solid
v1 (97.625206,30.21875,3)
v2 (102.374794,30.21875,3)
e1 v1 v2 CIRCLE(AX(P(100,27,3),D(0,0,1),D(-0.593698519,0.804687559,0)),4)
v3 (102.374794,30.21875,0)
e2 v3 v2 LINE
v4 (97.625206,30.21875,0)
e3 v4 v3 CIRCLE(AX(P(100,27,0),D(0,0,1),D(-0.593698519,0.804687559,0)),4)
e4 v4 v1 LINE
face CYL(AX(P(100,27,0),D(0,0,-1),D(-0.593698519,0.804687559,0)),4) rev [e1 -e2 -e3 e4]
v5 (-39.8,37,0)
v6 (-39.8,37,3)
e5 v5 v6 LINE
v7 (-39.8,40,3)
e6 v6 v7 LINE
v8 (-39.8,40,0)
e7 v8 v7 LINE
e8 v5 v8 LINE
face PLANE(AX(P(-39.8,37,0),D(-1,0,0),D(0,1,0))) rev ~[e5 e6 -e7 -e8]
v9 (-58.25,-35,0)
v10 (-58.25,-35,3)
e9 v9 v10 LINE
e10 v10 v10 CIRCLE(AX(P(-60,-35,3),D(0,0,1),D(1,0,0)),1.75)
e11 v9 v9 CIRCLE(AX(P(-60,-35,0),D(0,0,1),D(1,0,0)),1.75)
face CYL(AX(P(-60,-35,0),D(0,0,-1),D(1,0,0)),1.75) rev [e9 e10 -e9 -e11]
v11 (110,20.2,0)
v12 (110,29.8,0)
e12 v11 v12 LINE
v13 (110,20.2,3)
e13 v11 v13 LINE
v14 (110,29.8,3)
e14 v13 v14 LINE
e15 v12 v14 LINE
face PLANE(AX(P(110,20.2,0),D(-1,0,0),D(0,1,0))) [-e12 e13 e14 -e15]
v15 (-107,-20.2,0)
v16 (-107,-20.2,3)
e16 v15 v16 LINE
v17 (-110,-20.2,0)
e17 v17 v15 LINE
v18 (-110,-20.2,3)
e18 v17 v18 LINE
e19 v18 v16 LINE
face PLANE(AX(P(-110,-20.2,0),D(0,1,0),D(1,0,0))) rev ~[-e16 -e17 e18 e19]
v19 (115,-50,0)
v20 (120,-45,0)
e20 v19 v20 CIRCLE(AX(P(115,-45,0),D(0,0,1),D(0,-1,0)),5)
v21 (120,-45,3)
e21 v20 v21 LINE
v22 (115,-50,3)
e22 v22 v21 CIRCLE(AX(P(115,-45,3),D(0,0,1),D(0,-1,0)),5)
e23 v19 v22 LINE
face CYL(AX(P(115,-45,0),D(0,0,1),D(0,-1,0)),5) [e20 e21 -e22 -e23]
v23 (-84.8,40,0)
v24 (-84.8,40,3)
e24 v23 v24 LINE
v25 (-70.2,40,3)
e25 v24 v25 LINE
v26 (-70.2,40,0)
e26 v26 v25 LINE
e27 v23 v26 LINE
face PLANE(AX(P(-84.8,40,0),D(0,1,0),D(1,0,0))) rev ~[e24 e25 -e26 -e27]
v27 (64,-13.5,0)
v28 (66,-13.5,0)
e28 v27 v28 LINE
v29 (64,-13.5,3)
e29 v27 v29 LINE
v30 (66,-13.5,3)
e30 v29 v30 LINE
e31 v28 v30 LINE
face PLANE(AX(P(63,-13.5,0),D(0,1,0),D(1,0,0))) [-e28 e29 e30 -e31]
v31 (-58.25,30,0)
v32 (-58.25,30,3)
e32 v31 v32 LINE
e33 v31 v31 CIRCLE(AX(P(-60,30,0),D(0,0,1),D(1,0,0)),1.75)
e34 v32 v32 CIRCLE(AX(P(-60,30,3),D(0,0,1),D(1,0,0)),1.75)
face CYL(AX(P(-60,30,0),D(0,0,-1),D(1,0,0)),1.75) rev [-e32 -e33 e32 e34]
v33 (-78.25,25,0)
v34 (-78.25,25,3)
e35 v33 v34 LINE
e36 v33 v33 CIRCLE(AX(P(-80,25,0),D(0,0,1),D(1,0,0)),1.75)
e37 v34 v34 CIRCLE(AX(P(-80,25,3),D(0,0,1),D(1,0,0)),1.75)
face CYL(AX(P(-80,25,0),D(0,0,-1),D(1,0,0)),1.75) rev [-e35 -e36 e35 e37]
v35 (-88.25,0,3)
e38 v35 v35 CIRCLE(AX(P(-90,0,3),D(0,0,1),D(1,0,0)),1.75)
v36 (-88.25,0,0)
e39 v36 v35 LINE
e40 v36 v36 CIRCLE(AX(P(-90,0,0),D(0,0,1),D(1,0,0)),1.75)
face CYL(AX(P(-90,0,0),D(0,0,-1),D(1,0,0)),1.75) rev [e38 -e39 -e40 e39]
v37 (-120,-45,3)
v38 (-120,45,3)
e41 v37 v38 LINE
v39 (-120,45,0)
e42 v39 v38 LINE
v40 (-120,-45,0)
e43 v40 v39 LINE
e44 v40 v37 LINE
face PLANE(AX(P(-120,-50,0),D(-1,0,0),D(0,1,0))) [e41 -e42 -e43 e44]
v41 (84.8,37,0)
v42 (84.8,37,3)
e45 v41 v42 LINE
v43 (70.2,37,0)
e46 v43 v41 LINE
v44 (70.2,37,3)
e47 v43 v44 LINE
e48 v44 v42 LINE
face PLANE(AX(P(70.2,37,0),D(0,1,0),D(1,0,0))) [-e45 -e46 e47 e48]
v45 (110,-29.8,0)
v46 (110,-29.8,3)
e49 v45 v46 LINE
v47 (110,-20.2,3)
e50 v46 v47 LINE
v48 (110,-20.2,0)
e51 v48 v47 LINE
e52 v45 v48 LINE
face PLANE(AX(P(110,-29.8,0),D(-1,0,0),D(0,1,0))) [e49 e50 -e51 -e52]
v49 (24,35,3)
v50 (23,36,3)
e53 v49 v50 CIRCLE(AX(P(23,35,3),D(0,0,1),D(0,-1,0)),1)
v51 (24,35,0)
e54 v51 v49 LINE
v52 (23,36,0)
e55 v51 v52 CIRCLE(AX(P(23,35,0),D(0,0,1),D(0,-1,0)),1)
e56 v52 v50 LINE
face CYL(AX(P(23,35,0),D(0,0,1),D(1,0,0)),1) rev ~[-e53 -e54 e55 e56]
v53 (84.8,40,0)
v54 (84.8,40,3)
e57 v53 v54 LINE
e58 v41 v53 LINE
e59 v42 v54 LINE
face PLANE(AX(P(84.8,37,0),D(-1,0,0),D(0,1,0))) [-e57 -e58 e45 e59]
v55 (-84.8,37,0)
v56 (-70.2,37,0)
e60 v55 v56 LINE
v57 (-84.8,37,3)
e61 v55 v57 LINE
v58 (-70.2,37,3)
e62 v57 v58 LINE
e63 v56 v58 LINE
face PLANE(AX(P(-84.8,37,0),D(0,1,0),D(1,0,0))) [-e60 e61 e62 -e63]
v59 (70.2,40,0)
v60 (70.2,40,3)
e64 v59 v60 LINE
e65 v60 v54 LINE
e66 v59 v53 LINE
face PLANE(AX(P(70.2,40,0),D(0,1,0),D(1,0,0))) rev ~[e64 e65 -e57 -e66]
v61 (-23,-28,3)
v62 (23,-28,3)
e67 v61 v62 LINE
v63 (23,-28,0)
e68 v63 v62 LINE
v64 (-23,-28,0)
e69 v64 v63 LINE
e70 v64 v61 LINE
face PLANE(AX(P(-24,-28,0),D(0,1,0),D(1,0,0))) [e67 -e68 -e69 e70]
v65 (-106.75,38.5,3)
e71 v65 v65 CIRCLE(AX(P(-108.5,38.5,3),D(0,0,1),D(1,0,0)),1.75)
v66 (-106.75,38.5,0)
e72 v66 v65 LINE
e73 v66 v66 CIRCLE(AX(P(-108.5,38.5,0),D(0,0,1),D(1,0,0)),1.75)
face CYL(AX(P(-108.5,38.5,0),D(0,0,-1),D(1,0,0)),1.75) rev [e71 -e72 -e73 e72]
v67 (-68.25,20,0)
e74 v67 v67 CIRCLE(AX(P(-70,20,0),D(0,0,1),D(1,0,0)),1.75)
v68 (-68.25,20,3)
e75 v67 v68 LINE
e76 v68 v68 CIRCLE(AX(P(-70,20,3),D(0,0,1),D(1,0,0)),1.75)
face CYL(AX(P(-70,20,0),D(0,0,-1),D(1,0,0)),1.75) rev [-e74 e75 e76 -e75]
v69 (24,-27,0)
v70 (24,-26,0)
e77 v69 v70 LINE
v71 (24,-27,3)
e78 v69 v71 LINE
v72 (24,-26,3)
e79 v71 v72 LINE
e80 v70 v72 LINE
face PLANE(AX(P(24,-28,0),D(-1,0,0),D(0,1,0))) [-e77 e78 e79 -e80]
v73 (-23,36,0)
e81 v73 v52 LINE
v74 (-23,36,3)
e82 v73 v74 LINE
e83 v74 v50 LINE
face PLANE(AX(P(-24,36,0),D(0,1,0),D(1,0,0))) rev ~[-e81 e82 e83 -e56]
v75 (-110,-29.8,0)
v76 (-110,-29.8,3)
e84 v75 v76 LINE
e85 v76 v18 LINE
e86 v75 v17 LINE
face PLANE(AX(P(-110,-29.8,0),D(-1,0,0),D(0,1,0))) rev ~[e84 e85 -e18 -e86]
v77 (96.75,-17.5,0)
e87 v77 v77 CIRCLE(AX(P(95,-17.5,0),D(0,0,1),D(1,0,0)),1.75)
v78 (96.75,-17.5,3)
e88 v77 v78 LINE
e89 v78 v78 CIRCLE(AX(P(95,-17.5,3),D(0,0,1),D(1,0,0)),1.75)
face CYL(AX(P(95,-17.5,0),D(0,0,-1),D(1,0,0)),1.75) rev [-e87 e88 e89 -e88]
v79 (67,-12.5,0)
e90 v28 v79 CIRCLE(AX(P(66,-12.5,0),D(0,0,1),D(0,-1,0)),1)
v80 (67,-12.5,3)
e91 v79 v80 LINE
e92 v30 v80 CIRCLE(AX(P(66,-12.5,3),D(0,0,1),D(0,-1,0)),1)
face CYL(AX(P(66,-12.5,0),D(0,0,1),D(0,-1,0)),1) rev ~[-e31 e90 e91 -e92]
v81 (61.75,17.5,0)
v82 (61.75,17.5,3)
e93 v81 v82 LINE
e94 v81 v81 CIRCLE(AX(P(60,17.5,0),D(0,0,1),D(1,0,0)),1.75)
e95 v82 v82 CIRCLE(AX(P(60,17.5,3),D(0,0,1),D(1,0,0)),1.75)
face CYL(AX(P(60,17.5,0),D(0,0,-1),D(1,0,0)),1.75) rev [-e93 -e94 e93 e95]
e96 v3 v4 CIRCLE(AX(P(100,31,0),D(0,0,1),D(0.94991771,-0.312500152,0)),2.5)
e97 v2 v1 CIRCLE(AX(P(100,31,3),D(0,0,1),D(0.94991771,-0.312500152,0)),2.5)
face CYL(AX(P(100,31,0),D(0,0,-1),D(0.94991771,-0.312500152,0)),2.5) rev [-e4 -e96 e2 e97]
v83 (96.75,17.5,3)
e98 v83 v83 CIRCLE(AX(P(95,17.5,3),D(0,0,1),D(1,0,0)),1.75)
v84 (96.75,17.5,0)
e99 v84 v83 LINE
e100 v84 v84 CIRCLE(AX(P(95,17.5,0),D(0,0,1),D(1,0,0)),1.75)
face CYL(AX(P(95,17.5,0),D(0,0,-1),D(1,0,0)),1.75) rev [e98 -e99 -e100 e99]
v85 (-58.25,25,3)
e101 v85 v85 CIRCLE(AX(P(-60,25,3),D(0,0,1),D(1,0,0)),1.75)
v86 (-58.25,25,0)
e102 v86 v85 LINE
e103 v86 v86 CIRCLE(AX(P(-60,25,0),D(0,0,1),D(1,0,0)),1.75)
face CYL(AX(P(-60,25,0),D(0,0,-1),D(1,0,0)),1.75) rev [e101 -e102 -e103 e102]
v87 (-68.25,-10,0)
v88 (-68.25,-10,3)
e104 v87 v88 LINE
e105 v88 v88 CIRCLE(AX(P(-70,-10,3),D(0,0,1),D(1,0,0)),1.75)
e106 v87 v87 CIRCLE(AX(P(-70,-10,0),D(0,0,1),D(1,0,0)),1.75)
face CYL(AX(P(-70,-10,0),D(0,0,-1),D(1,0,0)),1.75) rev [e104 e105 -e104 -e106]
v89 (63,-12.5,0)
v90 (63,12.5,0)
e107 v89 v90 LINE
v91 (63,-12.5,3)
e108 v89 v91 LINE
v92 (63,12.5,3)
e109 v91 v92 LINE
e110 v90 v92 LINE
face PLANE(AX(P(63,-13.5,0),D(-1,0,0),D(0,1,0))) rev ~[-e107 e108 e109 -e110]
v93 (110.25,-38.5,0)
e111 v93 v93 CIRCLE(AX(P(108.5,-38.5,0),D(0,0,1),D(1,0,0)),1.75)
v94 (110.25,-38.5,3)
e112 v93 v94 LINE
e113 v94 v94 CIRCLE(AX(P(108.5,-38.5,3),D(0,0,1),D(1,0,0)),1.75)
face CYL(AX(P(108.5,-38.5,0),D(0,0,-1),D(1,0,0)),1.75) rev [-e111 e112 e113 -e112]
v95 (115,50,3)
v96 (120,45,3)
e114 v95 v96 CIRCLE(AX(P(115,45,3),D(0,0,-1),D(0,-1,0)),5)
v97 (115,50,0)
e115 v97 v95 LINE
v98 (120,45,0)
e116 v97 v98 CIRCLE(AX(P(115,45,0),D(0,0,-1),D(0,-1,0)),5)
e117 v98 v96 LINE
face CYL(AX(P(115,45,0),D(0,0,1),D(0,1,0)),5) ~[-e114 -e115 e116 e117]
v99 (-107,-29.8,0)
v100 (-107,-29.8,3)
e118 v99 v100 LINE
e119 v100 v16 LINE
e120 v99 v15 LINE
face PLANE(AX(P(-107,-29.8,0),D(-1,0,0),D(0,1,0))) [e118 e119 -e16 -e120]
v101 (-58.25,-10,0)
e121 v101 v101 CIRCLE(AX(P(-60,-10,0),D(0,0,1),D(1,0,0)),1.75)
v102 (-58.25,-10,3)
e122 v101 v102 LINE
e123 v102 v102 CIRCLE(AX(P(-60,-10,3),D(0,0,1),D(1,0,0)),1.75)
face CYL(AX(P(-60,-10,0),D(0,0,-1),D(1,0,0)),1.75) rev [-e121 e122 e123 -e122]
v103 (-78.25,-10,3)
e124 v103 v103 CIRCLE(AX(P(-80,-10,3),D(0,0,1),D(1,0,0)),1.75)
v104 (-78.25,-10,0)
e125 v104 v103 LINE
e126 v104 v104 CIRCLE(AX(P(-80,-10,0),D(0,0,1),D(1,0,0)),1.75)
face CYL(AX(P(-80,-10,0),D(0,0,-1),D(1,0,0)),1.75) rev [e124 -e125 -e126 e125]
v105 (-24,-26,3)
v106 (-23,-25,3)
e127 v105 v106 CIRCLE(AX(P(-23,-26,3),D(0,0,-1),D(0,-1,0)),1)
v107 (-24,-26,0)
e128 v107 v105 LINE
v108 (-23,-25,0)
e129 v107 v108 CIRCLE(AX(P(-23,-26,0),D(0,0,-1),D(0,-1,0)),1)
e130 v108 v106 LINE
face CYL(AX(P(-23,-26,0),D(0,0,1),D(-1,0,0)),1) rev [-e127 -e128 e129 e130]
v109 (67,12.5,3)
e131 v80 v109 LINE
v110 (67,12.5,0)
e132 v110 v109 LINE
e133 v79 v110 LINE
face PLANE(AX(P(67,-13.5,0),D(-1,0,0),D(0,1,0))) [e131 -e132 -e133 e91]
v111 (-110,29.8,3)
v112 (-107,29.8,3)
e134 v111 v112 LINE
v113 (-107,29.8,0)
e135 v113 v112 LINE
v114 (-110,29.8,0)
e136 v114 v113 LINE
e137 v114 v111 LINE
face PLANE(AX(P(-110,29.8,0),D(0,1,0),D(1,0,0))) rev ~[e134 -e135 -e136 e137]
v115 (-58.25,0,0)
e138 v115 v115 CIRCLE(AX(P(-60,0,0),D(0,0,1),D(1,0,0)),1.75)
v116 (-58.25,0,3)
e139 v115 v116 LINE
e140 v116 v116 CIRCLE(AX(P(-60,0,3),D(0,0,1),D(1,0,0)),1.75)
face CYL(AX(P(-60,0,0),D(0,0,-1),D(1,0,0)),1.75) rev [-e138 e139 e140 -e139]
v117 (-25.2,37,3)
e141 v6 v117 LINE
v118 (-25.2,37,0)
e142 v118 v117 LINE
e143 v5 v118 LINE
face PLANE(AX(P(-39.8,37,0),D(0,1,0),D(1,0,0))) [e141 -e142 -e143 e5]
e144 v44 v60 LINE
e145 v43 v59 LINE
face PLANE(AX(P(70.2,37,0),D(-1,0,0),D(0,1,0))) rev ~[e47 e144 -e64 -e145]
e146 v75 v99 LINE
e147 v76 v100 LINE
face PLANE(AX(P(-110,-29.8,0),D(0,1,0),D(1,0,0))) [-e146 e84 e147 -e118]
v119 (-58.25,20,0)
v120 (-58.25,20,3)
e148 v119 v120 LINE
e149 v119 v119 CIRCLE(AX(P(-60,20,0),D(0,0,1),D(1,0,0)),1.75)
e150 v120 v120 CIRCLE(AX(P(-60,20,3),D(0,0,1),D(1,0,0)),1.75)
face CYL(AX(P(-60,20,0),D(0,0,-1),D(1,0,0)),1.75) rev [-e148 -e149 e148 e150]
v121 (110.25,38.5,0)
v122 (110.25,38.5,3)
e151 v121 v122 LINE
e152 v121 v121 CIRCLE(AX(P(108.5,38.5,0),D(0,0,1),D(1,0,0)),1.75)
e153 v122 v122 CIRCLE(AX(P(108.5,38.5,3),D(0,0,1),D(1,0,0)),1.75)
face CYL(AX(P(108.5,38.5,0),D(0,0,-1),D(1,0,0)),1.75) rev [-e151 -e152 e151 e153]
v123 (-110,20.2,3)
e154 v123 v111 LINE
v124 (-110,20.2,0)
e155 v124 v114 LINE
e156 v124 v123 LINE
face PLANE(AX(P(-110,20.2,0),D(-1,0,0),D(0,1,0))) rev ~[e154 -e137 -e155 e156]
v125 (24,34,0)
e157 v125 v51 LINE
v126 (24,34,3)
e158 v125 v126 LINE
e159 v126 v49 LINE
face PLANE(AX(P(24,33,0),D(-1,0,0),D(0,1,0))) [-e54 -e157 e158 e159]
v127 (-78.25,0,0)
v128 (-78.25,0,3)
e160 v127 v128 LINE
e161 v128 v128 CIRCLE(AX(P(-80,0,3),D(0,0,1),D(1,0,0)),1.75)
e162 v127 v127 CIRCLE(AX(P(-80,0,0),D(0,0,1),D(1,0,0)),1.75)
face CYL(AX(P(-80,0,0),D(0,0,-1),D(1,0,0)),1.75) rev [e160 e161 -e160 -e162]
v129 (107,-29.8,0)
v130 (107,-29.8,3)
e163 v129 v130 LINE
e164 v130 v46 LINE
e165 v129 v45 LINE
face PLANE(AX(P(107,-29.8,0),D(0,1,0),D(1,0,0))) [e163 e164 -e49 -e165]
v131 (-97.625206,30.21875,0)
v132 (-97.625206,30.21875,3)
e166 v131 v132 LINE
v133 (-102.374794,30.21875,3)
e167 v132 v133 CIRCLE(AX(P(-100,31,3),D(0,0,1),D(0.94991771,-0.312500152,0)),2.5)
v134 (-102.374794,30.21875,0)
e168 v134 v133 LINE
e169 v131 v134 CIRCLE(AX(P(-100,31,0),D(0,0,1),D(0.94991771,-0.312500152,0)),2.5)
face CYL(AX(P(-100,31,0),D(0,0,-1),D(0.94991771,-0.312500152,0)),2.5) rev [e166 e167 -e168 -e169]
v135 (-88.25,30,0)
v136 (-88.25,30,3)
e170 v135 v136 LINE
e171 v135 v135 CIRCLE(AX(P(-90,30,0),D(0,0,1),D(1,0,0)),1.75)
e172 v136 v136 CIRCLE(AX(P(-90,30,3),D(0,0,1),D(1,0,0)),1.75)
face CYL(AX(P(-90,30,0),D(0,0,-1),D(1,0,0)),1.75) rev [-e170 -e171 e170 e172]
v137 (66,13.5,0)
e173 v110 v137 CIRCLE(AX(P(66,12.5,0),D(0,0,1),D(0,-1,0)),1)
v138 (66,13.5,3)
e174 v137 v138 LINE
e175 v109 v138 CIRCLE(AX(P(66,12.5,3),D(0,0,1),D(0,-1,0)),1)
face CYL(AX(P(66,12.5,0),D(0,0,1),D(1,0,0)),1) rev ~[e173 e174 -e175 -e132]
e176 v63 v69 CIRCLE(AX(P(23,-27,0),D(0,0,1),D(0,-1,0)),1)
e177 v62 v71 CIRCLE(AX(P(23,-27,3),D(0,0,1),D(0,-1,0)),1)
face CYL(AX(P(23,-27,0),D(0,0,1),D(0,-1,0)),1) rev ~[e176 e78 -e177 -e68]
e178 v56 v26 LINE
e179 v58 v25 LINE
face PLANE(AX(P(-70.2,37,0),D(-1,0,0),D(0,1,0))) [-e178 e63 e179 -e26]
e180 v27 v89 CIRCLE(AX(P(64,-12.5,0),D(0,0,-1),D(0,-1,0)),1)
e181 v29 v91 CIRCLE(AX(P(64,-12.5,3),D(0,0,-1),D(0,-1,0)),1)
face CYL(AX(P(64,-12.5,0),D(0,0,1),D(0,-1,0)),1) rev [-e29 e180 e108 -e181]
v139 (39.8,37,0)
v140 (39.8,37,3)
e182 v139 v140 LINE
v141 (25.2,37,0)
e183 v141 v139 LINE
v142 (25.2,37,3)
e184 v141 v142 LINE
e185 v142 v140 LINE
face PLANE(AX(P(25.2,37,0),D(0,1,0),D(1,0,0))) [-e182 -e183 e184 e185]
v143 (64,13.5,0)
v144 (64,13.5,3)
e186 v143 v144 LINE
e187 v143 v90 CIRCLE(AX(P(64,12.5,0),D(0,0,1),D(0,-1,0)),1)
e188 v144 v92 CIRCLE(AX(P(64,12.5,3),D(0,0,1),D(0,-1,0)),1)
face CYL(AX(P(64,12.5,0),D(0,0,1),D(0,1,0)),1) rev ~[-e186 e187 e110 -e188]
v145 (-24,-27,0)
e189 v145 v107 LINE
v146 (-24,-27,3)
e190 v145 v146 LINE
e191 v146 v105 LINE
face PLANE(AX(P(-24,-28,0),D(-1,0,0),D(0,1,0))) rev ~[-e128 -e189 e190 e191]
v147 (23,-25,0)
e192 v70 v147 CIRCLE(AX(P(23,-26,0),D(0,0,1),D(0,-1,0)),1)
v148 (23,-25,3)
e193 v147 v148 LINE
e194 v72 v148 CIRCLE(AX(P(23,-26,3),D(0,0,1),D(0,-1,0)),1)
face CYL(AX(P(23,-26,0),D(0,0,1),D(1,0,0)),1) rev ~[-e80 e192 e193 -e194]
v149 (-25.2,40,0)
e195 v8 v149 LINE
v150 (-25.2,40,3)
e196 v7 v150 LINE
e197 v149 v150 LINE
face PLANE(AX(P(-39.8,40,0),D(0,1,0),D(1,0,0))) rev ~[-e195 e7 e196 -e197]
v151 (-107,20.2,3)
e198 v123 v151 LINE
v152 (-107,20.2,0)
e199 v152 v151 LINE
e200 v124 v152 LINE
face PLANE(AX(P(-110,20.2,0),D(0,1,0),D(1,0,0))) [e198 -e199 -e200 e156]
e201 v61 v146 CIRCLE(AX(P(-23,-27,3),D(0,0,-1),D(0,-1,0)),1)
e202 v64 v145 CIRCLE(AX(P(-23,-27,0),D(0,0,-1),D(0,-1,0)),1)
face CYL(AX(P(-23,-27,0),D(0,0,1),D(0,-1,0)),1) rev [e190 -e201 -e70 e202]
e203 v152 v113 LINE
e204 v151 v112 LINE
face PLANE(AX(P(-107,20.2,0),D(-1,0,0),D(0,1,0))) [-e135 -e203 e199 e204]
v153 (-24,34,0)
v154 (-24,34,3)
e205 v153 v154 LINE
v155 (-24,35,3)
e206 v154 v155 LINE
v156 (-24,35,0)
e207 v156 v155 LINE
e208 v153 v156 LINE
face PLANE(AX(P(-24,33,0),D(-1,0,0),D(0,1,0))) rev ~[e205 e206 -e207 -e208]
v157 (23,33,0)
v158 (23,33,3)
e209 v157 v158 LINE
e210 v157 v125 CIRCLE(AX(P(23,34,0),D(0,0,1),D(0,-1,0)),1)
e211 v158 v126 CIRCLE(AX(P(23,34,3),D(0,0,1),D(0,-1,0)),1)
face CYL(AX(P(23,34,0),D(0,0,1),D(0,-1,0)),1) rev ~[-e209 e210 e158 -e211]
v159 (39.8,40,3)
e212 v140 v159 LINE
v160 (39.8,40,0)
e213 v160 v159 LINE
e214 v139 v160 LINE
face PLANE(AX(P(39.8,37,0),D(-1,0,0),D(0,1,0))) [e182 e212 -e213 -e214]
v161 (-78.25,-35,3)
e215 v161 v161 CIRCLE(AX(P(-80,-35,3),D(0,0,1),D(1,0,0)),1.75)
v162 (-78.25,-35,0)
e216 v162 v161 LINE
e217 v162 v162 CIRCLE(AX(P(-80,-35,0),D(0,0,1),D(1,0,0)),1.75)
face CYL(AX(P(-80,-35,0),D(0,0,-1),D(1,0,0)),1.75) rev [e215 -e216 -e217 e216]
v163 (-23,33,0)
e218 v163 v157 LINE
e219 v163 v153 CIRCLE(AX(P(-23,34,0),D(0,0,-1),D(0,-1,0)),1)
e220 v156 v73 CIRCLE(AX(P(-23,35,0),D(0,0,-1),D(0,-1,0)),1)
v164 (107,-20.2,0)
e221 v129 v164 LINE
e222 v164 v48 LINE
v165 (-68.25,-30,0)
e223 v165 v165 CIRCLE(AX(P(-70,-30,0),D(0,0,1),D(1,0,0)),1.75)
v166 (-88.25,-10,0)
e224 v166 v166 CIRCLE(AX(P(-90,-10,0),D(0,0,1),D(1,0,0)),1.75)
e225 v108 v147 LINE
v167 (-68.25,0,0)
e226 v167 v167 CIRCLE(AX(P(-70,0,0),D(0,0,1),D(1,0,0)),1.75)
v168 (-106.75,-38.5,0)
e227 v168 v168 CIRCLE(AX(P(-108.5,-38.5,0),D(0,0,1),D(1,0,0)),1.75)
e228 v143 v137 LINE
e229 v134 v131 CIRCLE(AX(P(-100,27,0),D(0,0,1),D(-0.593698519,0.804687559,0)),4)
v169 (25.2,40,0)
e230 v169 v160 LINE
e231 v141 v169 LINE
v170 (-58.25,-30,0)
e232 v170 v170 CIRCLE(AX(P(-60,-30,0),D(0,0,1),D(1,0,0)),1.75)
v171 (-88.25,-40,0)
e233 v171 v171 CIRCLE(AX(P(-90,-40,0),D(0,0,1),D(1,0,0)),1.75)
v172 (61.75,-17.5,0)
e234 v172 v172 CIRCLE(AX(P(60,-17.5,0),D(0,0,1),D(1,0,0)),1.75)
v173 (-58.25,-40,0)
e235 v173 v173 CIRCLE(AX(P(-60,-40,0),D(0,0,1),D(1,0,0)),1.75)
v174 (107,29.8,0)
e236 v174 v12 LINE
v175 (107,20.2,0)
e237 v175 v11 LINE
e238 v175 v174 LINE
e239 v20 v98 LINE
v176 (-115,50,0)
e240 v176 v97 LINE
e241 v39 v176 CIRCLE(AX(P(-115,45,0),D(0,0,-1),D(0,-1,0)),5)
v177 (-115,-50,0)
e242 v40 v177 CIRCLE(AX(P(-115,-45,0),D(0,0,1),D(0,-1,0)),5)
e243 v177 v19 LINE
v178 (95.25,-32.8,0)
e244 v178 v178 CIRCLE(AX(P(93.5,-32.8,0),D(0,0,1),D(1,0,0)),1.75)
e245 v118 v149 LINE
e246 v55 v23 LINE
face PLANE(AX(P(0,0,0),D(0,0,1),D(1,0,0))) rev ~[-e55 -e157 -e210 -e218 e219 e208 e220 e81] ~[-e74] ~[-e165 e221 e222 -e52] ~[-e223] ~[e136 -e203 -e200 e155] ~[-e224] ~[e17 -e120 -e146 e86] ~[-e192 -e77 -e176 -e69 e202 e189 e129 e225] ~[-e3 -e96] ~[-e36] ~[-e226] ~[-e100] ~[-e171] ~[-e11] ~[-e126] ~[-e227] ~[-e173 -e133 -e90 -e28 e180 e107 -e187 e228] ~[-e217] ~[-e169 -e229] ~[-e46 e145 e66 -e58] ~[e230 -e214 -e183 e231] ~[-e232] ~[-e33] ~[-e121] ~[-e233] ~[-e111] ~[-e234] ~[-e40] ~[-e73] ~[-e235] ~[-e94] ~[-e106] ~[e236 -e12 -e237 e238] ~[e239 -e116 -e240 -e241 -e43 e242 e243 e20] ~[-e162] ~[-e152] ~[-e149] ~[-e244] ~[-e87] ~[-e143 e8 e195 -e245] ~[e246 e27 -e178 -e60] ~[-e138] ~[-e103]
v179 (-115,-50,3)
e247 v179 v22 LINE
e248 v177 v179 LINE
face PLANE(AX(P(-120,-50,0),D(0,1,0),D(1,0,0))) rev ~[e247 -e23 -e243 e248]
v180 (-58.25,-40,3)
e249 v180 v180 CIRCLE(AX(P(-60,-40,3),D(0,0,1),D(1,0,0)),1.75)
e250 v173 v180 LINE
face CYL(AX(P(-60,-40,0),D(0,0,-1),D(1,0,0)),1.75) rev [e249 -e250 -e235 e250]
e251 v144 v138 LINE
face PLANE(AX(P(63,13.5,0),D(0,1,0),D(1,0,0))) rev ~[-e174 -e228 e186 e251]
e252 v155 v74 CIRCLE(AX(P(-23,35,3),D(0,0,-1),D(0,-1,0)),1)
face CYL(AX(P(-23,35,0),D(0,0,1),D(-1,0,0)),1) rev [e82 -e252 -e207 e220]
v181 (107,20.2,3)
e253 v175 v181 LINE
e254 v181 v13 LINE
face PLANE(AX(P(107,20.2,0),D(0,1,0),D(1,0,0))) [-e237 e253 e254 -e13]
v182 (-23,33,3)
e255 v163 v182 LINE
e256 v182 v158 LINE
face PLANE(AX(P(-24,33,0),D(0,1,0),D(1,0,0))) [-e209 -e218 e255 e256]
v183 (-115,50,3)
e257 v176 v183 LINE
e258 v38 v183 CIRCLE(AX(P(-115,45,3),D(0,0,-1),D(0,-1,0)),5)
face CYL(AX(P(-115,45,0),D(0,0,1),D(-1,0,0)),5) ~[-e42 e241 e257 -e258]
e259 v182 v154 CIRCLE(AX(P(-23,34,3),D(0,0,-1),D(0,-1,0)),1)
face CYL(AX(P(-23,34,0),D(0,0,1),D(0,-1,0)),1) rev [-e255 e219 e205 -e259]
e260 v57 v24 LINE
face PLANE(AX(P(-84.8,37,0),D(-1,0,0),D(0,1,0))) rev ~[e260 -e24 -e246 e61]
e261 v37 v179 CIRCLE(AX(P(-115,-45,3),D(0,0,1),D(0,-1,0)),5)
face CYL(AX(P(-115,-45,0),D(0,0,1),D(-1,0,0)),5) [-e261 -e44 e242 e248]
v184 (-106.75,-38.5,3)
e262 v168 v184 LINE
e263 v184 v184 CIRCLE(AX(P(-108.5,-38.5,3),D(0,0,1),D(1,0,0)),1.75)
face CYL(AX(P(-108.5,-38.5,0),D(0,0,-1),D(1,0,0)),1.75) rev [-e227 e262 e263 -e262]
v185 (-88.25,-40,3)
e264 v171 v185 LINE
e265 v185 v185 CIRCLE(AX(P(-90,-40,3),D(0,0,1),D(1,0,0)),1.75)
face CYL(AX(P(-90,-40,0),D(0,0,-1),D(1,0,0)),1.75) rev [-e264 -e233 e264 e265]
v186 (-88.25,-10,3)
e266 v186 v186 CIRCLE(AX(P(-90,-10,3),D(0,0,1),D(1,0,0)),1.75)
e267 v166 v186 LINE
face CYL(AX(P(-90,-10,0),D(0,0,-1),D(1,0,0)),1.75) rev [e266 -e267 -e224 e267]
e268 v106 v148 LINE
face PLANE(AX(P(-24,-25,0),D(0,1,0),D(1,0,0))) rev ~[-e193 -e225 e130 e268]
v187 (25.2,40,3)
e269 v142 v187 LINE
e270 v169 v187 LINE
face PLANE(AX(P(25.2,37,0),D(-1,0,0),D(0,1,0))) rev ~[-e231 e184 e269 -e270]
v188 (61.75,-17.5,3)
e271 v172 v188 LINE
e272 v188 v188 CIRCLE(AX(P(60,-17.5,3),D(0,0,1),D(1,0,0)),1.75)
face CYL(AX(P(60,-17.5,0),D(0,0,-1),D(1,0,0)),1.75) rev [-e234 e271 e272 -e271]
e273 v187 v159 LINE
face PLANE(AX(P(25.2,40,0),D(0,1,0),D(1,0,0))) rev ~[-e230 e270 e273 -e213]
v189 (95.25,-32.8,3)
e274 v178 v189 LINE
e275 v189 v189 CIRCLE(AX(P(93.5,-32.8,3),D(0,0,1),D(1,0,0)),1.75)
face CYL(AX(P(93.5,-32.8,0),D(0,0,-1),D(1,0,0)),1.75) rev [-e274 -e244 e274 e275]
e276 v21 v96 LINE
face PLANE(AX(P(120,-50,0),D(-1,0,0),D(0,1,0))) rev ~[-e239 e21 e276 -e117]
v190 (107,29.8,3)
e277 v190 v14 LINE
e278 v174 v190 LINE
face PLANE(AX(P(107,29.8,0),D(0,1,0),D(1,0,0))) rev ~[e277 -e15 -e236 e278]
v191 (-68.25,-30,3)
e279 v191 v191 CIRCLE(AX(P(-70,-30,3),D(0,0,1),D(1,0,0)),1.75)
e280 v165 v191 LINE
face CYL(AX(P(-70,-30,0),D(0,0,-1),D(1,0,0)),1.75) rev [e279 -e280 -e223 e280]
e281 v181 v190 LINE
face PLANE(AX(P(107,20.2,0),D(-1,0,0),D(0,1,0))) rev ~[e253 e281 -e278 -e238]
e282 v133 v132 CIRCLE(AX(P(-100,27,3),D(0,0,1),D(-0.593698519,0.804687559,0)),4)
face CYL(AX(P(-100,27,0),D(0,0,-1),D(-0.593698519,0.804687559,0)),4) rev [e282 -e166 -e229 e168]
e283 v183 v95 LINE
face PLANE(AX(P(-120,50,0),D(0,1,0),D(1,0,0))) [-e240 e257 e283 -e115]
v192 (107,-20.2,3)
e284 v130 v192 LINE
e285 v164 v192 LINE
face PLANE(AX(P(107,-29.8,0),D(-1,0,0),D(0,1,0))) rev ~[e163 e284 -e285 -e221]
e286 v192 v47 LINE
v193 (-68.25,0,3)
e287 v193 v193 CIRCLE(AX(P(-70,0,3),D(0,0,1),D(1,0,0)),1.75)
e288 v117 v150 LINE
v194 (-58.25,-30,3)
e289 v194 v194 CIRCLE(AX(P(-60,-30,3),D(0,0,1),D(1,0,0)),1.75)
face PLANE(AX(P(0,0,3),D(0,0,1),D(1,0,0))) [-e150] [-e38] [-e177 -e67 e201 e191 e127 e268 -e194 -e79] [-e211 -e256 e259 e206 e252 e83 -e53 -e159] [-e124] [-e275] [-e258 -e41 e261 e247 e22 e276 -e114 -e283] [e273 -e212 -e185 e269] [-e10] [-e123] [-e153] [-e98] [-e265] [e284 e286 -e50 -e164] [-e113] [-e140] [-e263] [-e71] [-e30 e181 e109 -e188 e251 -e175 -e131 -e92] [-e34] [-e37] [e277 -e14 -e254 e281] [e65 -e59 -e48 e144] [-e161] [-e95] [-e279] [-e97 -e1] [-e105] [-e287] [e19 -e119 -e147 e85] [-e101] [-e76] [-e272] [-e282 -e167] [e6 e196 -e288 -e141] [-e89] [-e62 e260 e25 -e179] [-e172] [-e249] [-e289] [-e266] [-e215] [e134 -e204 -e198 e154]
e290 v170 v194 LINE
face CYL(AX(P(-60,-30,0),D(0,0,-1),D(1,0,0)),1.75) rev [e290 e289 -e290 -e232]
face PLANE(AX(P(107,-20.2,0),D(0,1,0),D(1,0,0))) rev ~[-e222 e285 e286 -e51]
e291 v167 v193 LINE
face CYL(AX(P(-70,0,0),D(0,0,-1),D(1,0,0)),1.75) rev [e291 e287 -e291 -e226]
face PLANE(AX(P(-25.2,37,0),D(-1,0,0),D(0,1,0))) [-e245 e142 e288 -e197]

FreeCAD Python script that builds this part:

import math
import FreeCAD as App
import Part
import Sketcher


def edges_at(feature, points):
    """Names of the edges that pass closest to the given points."""
    edges = feature.Shape.Edges
    near = lambda p: min(range(len(edges)), key=lambda i: edges[i].distToShape(Part.Vertex(*p))[0])
    return sorted({f"Edge{near(p) + 1}" for p in points})

doc = App.newDocument("Part")
body = doc.addObject("PartDesign::Body", "Body")
body.AllowCompound = True

sketch1 = body.newObject("Sketcher::SketchObject", "Sketch")
sketch1.AttachmentSupport = (doc.getObject("XY_Plane"), [""])
sketch1.MapMode = "FlatFace"
sketch1.addGeometry([
    Part.Circle(App.Vector(60, -17.5, 0), App.Vector(0, 0, 1), 1.8),
    Part.Circle(App.Vector(60, 17.5, 0), App.Vector(0, 0, 1), 1.8),
    Part.Circle(App.Vector(95, 17.5, 0), App.Vector(0, 0, 1), 1.8),
    Part.Circle(App.Vector(95, -17.5, 0), App.Vector(0, 0, 1), 1.8),
    Part.LineSegment(App.Vector(63, 13.5, 0), App.Vector(63, -13.5, 0)),
    Part.LineSegment(App.Vector(63, -13.5, 0), App.Vector(67, -13.5, 0)),
    Part.LineSegment(App.Vector(67, -13.5, 0), App.Vector(67, 13.5, 0)),
    Part.LineSegment(App.Vector(67, 13.5, 0), App.Vector(63, 13.5, 0)),
], False)
sketch1.addConstraint([
    Sketcher.Constraint("Coincident", 4, 2, 5, 1),
    Sketcher.Constraint("Coincident", 5, 2, 6, 1),
    Sketcher.Constraint("Coincident", 6, 2, 7, 1),
    Sketcher.Constraint("Coincident", 7, 2, 4, 1),
    Sketcher.Constraint("Vertical", 4),
    Sketcher.Constraint("Horizontal", 5),
    Sketcher.Constraint("Vertical", 6),
    Sketcher.Constraint("Horizontal", 7),
    Sketcher.Constraint("Equal", 0, 1),
    Sketcher.Constraint("Equal", 1, 2),
    Sketcher.Constraint("Equal", 2, 3),
    Sketcher.Constraint("Symmetric", 0, 3, 1, 3, -1),
    Sketcher.Constraint("Symmetric", 2, 3, 3, 3, -1),
    Sketcher.Constraint("Horizontal", 1, 3, 2, 3),
    Sketcher.Constraint("Diameter", 0, 3.5),
    Sketcher.Constraint("DistanceX", 5, 1, 5, 2, 4.0),
    Sketcher.Constraint("DistanceY", 4, 2, 4, 1, 27.0),
    Sketcher.Constraint("DistanceX", -1, 1, 0, 3, 60.0),
    Sketcher.Constraint("DistanceX", -1, 1, 2, 3, 95.0),
    Sketcher.Constraint("DistanceX", -1, 1, 4, 2, 63.0),
    Sketcher.Constraint("DistanceY", 0, 3, 1, 3, 35.0),
    Sketcher.Constraint("DistanceY", 0, 3, 4, 2, 4.0),
])
pad1 = body.newObject("PartDesign::Pad", "Pad")
pad1.Profile = sketch1
pad1.Length = 3
body2 = doc.addObject("PartDesign::Body", "Body001")

sketch2 = body2.newObject("Sketcher::SketchObject", "Sketch001")
sketch2.AttachmentSupport = (doc.getObject("XY_Plane001"), [""])
sketch2.MapMode = "FlatFace"
sketch2.addGeometry([
    Part.ArcOfCircle(Part.Circle(App.Vector(100, 27, 0), App.Vector(0, 0, 1), 4), math.radians(126), math.radians(414)),
    Part.ArcOfCircle(Part.Circle(App.Vector(100, 31, 0), App.Vector(0, 0, 1), 2.5), math.radians(-18), math.radians(198)),
], False)
sketch2.addConstraint([
    Sketcher.Constraint("Coincident", 0, 1, 1, 2),
    Sketcher.Constraint("Coincident", 1, 1, 0, 2),
    Sketcher.Constraint("Horizontal", 0, 1, 1, 1),
    Sketcher.Constraint("Radius", 0, 4.0),
    Sketcher.Constraint("Radius", 1, 2.5),
    Sketcher.Constraint("DistanceX", -1, 1, 0, 3, 100.0),
    Sketcher.Constraint("DistanceY", -1, 1, 0, 3, 27.0),
    Sketcher.Constraint("DistanceY", -1, 1, 1, 3, 31.0),
])
pad2 = body2.newObject("PartDesign::Pad", "Pad001")
pad2.Profile = sketch2
pad2.Length = 3
body3 = doc.addObject("PartDesign::Body", "Body002")

sketch3 = body3.newObject("Sketcher::SketchObject", "Sketch002")
sketch3.AttachmentSupport = (doc.getObject("XY_Plane002"), [""])
sketch3.MapMode = "FlatFace"
sketch3.addGeometry([
    Part.ArcOfCircle(Part.Circle(App.Vector(-100, 27, 0), App.Vector(0, 0, 1), 4), math.radians(126), math.radians(414)),
    Part.ArcOfCircle(Part.Circle(App.Vector(-100, 31, 0), App.Vector(0, 0, 1), 2.5), math.radians(-18), math.radians(198)),
], False)
sketch3.addConstraint([
    Sketcher.Constraint("Coincident", 0, 1, 1, 2),
    Sketcher.Constraint("Coincident", 1, 1, 0, 2),
    Sketcher.Constraint("Horizontal", 0, 1, 1, 1),
    Sketcher.Constraint("Radius", 0, 4.0),
    Sketcher.Constraint("Radius", 1, 2.5),
    Sketcher.Constraint("DistanceX", 0, 3, -1, 1, 100.0),
    Sketcher.Constraint("DistanceY", -1, 1, 0, 3, 27.0),
    Sketcher.Constraint("DistanceY", -1, 1, 1, 3, 31.0),
])
pad3 = body3.newObject("PartDesign::Pad", "Pad002")
pad3.Profile = sketch3
pad3.Length = 3
body4 = doc.addObject("PartDesign::Body", "Body003")
body4.AllowCompound = True

sketch4 = body4.newObject("Sketcher::SketchObject", "Sketch003")
sketch4.AttachmentSupport = (doc.getObject("XY_Plane003"), [""])
sketch4.MapMode = "FlatFace"
sketch4.addGeometry([
    Part.Circle(App.Vector(-90, 30, 0), App.Vector(0, 0, 1), 1.8),
    Part.Circle(App.Vector(-60, 30, 0), App.Vector(0, 0, 1), 1.8),
    Part.Circle(App.Vector(-90, 0, 0), App.Vector(0, 0, 1), 1.8),
    Part.Circle(App.Vector(-60, 0, 0), App.Vector(0, 0, 1), 1.8),
    Part.Circle(App.Vector(-80, 0, 0), App.Vector(0, 0, 1), 1.8),
    Part.Circle(App.Vector(-80, 25, 0), App.Vector(0, 0, 1), 1.8),
    Part.Circle(App.Vector(-60, 25, 0), App.Vector(0, 0, 1), 1.8),
    Part.Circle(App.Vector(-70, 0, 0), App.Vector(0, 0, 1), 1.8),
    Part.Circle(App.Vector(-70, 20, 0), App.Vector(0, 0, 1), 1.8),
    Part.Circle(App.Vector(-60, 20, 0), App.Vector(0, 0, 1), 1.8),
], False)
sketch4.addConstraint([
    Sketcher.Constraint("Equal", 0, 1),
    Sketcher.Constraint("Equal", 1, 2),
    Sketcher.Constraint("Equal", 2, 3),
    Sketcher.Constraint("Equal", 3, 4),
    Sketcher.Constraint("Equal", 4, 5),
    Sketcher.Constraint("Equal", 5, 6),
    Sketcher.Constraint("Equal", 6, 7),
    Sketcher.Constraint("Equal", 7, 8),
    Sketcher.Constraint("Equal", 8, 9),
    Sketcher.Constraint("PointOnObject", 2, 3, -1),
    Sketcher.Constraint("PointOnObject", 3, 3, -1),
    Sketcher.Constraint("PointOnObject", 4, 3, -1),
    Sketcher.Constraint("PointOnObject", 7, 3, -1),
    Sketcher.Constraint("Horizontal", 0, 3, 1, 3),
    Sketcher.Constraint("Horizontal", 5, 3, 6, 3),
    Sketcher.Constraint("Horizontal", 8, 3, 9, 3),
    Sketcher.Constraint("Vertical", 0, 3, 2, 3),
    Sketcher.Constraint("Vertical", 1, 3, 3, 3),
    Sketcher.Constraint("Vertical", 4, 3, 5, 3),
    Sketcher.Constraint("Vertical", 3, 3, 6, 3),
    Sketcher.Constraint("Vertical", 7, 3, 8, 3),
    Sketcher.Constraint("Vertical", 6, 3, 9, 3),
    Sketcher.Constraint("Diameter", 0, 3.5),
    Sketcher.Constraint("DistanceX", 0, 3, -1, 1, 90.0),
    Sketcher.Constraint("DistanceY", -1, 1, 0, 3, 30.0),
    Sketcher.Constraint("DistanceX", 1, 3, -1, 1, 60.0),
    Sketcher.Constraint("DistanceX", 4, 3, -1, 1, 80.0),
    Sketcher.Constraint("DistanceY", -1, 1, 5, 3, 25.0),
    Sketcher.Constraint("DistanceX", 7, 3, -1, 1, 70.0),
    Sketcher.Constraint("DistanceY", -1, 1, 8, 3, 20.0),
])
pad4 = body4.newObject("PartDesign::Pad", "Pad003")
pad4.Profile = sketch4
pad4.Length = 3
body5 = doc.addObject("PartDesign::Body", "Body004")
body5.AllowCompound = True

sketch5 = body5.newObject("Sketcher::SketchObject", "Sketch004")
sketch5.AttachmentSupport = (doc.getObject("XY_Plane004"), [""])
sketch5.MapMode = "FlatFace"
sketch5.addGeometry([
    Part.Circle(App.Vector(-108.5, 38.5, 0), App.Vector(0, 0, 1), 1.8),
    Part.Circle(App.Vector(-108.5, -38.5, 0), App.Vector(0, 0, 1), 1.8),
    Part.Circle(App.Vector(108.5, -38.5, 0), App.Vector(0, 0, 1), 1.8),
    Part.Circle(App.Vector(108.5, 38.5, 0), App.Vector(0, 0, 1), 1.8),
], False)
sketch5.addConstraint([
    Sketcher.Constraint("Equal", 0, 1),
    Sketcher.Constraint("Equal", 1, 2),
    Sketcher.Constraint("Equal", 2, 3),
    Sketcher.Constraint("Symmetric", 0, 3, 2, 3, -1, 1),
    Sketcher.Constraint("Symmetric", 1, 3, 3, 3, -1, 1),
    Sketcher.Constraint("Symmetric", 1, 3, 2, 3, -2),
    Sketcher.Constraint("Diameter", 0, 3.5),
    Sketcher.Constraint("DistanceY", 1, 3, 0, 3, 77.0),
    Sketcher.Constraint("DistanceX", 1, 3, 2, 3, 217.0),
])
pad5 = body5.newObject("PartDesign::Pad", "Pad004")
pad5.Profile = sketch5
pad5.Length = 3
body6 = doc.addObject("PartDesign::Body", "Body005")
body6.AllowCompound = True

sketch6 = body6.newObject("Sketcher::SketchObject", "Sketch005")
sketch6.AttachmentSupport = (doc.getObject("XY_Plane005"), [""])
sketch6.MapMode = "FlatFace"
sketch6.addGeometry([
    Part.LineSegment(App.Vector(-24, 36, 0), App.Vector(-24, 33, 0)),
    Part.LineSegment(App.Vector(-24, 33, 0), App.Vector(24, 33, 0)),
    Part.LineSegment(App.Vector(24, 33, 0), App.Vector(24, 36, 0)),
    Part.LineSegment(App.Vector(24, 36, 0), App.Vector(-24, 36, 0)),
    Part.LineSegment(App.Vector(-24, -25, 0), App.Vector(-24, -28, 0)),
    Part.LineSegment(App.Vector(-24, -28, 0), App.Vector(24, -28, 0)),
    Part.LineSegment(App.Vector(24, -28, 0), App.Vector(24, -25, 0)),
    Part.LineSegment(App.Vector(24, -25, 0), App.Vector(-24, -25, 0)),
], False)
sketch6.addConstraint([
    Sketcher.Constraint("Coincident", 0, 2, 1, 1),
    Sketcher.Constraint("Coincident", 1, 2, 2, 1),
    Sketcher.Constraint("Coincident", 2, 2, 3, 1),
    Sketcher.Constraint("Coincident", 3, 2, 0, 1),
    Sketcher.Constraint("Coincident", 4, 2, 5, 1),
    Sketcher.Constraint("Coincident", 5, 2, 6, 1),
    Sketcher.Constraint("Coincident", 6, 2, 7, 1),
    Sketcher.Constraint("Coincident", 7, 2, 4, 1),
    Sketcher.Constraint("Vertical", 0),
    Sketcher.Constraint("Horizontal", 1),
    Sketcher.Constraint("Vertical", 2),
    Sketcher.Constraint("Horizontal", 3),
    Sketcher.Constraint("Vertical", 4),
    Sketcher.Constraint("Horizontal", 5),
    Sketcher.Constraint("Vertical", 6),
    Sketcher.Constraint("Horizontal", 7),
    Sketcher.Constraint("Vertical", 3, 2, 4, 2),
    Sketcher.Constraint("Vertical", 2, 2, 5, 2),
    Sketcher.Constraint("Equal", 2, 4),
    Sketcher.Constraint("DistanceX", 1, 1, 1, 2, 48.0),
    Sketcher.Constraint("DistanceY", 0, 2, 0, 1, 3.0),
    Sketcher.Constraint("DistanceX", 0, 2, -1, 1, 24.0),
    Sketcher.Constraint("DistanceY", -1, 1, 0, 2, 33.0),
    Sketcher.Constraint("DistanceY", 4, 2, -1, 1, 28.0),
])
pad6 = body6.newObject("PartDesign::Pad", "Pad005")
pad6.Profile = sketch6
pad6.Length = 3
body7 = doc.addObject("PartDesign::Body", "Body006")
body7.AllowCompound = True

sketch7 = body7.newObject("Sketcher::SketchObject", "Sketch006")
sketch7.AttachmentSupport = (doc.getObject("XY_Plane006"), [""])
sketch7.MapMode = "FlatFace"
sketch7.addGeometry([
    Part.Circle(App.Vector(-90, -40, 0), App.Vector(0, 0, 1), 1.8),
    Part.Circle(App.Vector(-60, -40, 0), App.Vector(0, 0, 1), 1.8),
    Part.Circle(App.Vector(-90, -10, 0), App.Vector(0, 0, 1), 1.8),
    Part.Circle(App.Vector(-60, -10, 0), App.Vector(0, 0, 1), 1.8),
    Part.Circle(App.Vector(-80, -10, 0), App.Vector(0, 0, 1), 1.8),
    Part.Circle(App.Vector(-80, -35, 0), App.Vector(0, 0, 1), 1.8),
    Part.Circle(App.Vector(-60, -35, 0), App.Vector(0, 0, 1), 1.8),
    Part.Circle(App.Vector(-70, -10, 0), App.Vector(0, 0, 1), 1.8),
    Part.Circle(App.Vector(-70, -30, 0), App.Vector(0, 0, 1), 1.8),
    Part.Circle(App.Vector(-60, -30, 0), App.Vector(0, 0, 1), 1.8),
], False)
sketch7.addConstraint([
    Sketcher.Constraint("Equal", 0, 1),
    Sketcher.Constraint("Equal", 1, 2),
    Sketcher.Constraint("Equal", 2, 3),
    Sketcher.Constraint("Equal", 3, 4),
    Sketcher.Constraint("Equal", 4, 5),
    Sketcher.Constraint("Equal", 5, 6),
    Sketcher.Constraint("Equal", 6, 7),
    Sketcher.Constraint("Equal", 7, 8),
    Sketcher.Constraint("Equal", 8, 9),
    Sketcher.Constraint("Horizontal", 0, 3, 1, 3),
    Sketcher.Constraint("Horizontal", 2, 3, 3, 3),
    Sketcher.Constraint("Horizontal", 3, 3, 4, 3),
    Sketcher.Constraint("Horizontal", 5, 3, 6, 3),
    Sketcher.Constraint("Horizontal", 4, 3, 7, 3),
    Sketcher.Constraint("Horizontal", 8, 3, 9, 3),
    Sketcher.Constraint("Vertical", 0, 3, 2, 3),
    Sketcher.Constraint("Vertical", 1, 3, 3, 3),
    Sketcher.Constraint("Vertical", 4, 3, 5, 3),
    Sketcher.Constraint("Vertical", 3, 3, 6, 3),
    Sketcher.Constraint("Vertical", 7, 3, 8, 3),
    Sketcher.Constraint("Vertical", 6, 3, 9, 3),
    Sketcher.Constraint("Diameter", 0, 3.5),
    Sketcher.Constraint("DistanceX", 0, 3, -1, 1, 90.0),
    Sketcher.Constraint("DistanceY", 0, 3, -1, 1, 40.0),
    Sketcher.Constraint("DistanceX", 1, 3, -1, 1, 60.0),
    Sketcher.Constraint("DistanceY", 2, 3, -1, 1, 10.0),
    Sketcher.Constraint("DistanceX", 4, 3, -1, 1, 80.0),
    Sketcher.Constraint("DistanceY", 5, 3, -1, 1, 35.0),
    Sketcher.Constraint("DistanceX", 7, 3, -1, 1, 70.0),
    Sketcher.Constraint("DistanceY", 8, 3, -1, 1, 30.0),
])
pad7 = body7.newObject("PartDesign::Pad", "Pad006")
pad7.Profile = sketch7
pad7.Length = 3
body8 = doc.addObject("PartDesign::Body", "Body007")

sketch8 = body8.newObject("Sketcher::SketchObject", "Sketch007")
sketch8.AttachmentSupport = (doc.getObject("XY_Plane007"), [""])
sketch8.MapMode = "FlatFace"
sketch8.addGeometry([
    Part.LineSegment(App.Vector(-120, 50, 0), App.Vector(-120, -50, 0)),
    Part.LineSegment(App.Vector(-120, -50, 0), App.Vector(120, -50, 0)),
    Part.LineSegment(App.Vector(120, -50, 0), App.Vector(120, 50, 0)),
    Part.LineSegment(App.Vector(120, 50, 0), App.Vector(-120, 50, 0)),
    Part.LineSegment(App.Vector(-107, -29.8, 0), App.Vector(-110, -29.8, 0)),
    Part.LineSegment(App.Vector(-110, -29.8, 0), App.Vector(-110, -20.2, 0)),
    Part.LineSegment(App.Vector(-110, -20.2, 0), App.Vector(-107, -20.2, 0)),
    Part.LineSegment(App.Vector(-107, -20.2, 0), App.Vector(-107, -29.8, 0)),
    Part.Circle(App.Vector(93.5, -32.8, 0), App.Vector(0, 0, 1), 1.8),
    Part.LineSegment(App.Vector(110, -29.8, 0), App.Vector(107, -29.8, 0)),
    Part.LineSegment(App.Vector(107, -29.8, 0), App.Vector(107, -20.2, 0)),
    Part.LineSegment(App.Vector(107, -20.2, 0), App.Vector(110, -20.2, 0)),
    Part.LineSegment(App.Vector(110, -20.2, 0), App.Vector(110, -29.8, 0)),
    Part.LineSegment(App.Vector(-107, 20.2, 0), App.Vector(-110, 20.2, 0)),
    Part.LineSegment(App.Vector(-110, 20.2, 0), App.Vector(-110, 29.8, 0)),
    Part.LineSegment(App.Vector(-110, 29.8, 0), App.Vector(-107, 29.8, 0)),
    Part.LineSegment(App.Vector(-107, 29.8, 0), App.Vector(-107, 20.2, 0)),
    Part.LineSegment(App.Vector(-70.2, 37, 0), App.Vector(-84.8, 37, 0)),
    Part.LineSegment(App.Vector(-84.8, 37, 0), App.Vector(-84.8, 40, 0)),
    Part.LineSegment(App.Vector(-84.8, 40, 0), App.Vector(-70.2, 40, 0)),
    Part.LineSegment(App.Vector(-70.2, 40, 0), App.Vector(-70.2, 37, 0)),
    Part.LineSegment(App.Vector(-25.2, 37, 0), App.Vector(-39.8, 37, 0)),
    Part.LineSegment(App.Vector(-39.8, 37, 0), App.Vector(-39.8, 40, 0)),
    Part.LineSegment(App.Vector(-39.8, 40, 0), App.Vector(-25.2, 40, 0)),
    Part.LineSegment(App.Vector(-25.2, 40, 0), App.Vector(-25.2, 37, 0)),
    Part.LineSegment(App.Vector(39.8, 37, 0), App.Vector(25.2, 37, 0)),
    Part.LineSegment(App.Vector(25.2, 37, 0), App.Vector(25.2, 40, 0)),
    Part.LineSegment(App.Vector(25.2, 40, 0), App.Vector(39.8, 40, 0)),
    Part.LineSegment(App.Vector(39.8, 40, 0), App.Vector(39.8, 37, 0)),
    Part.LineSegment(App.Vector(110, 20.2, 0), App.Vector(107, 20.2, 0)),
    Part.LineSegment(App.Vector(107, 20.2, 0), App.Vector(107, 29.8, 0)),
    Part.LineSegment(App.Vector(107, 29.8, 0), App.Vector(110, 29.8, 0)),
    Part.LineSegment(App.Vector(110, 29.8, 0), App.Vector(110, 20.2, 0)),
    Part.LineSegment(App.Vector(84.8, 37, 0), App.Vector(70.2, 37, 0)),
    Part.LineSegment(App.Vector(70.2, 37, 0), App.Vector(70.2, 40, 0)),
    Part.LineSegment(App.Vector(70.2, 40, 0), App.Vector(84.8, 40, 0)),
    Part.LineSegment(App.Vector(84.8, 40, 0), App.Vector(84.8, 37, 0)),
], False)
sketch8.addConstraint([
    Sketcher.Constraint("Coincident", 0, 2, 1, 1),
    Sketcher.Constraint("Coincident", 1, 2, 2, 1),
    Sketcher.Constraint("Coincident", 2, 2, 3, 1),
    Sketcher.Constraint("Coincident", 3, 2, 0, 1),
    Sketcher.Constraint("Coincident", 4, 2, 5, 1),
    Sketcher.Constraint("Coincident", 5, 2, 6, 1),
    Sketcher.Constraint("Coincident", 6, 2, 7, 1),
    Sketcher.Constraint("Coincident", 7, 2, 4, 1),
    Sketcher.Constraint("Coincident", 9, 2, 10, 1),
    Sketcher.Constraint("Coincident", 10, 2, 11, 1),
    Sketcher.Constraint("Coincident", 11, 2, 12, 1),
    Sketcher.Constraint("Coincident", 12, 2, 9, 1),
    Sketcher.Constraint("Coincident", 13, 2, 14, 1),
    Sketcher.Constraint("Coincident", 14, 2, 15, 1),
    Sketcher.Constraint("Coincident", 15, 2, 16, 1),
    Sketcher.Constraint("Coincident", 16, 2, 13, 1),
    Sketcher.Constraint("Coincident", 17, 2, 18, 1),
    Sketcher.Constraint("Coincident", 18, 2, 19, 1),
    Sketcher.Constraint("Coincident", 19, 2, 20, 1),
    Sketcher.Constraint("Coincident", 20, 2, 17, 1),
    Sketcher.Constraint("Coincident", 21, 2, 22, 1),
    Sketcher.Constraint("Coincident", 22, 2, 23, 1),
    Sketcher.Constraint("Coincident", 23, 2, 24, 1),
    Sketcher.Constraint("Coincident", 24, 2, 21, 1),
    Sketcher.Constraint("Coincident", 25, 2, 26, 1),
    Sketcher.Constraint("Coincident", 26, 2, 27, 1),
    Sketcher.Constraint("Coincident", 27, 2, 28, 1),
    Sketcher.Constraint("Coincident", 28, 2, 25, 1),
    Sketcher.Constraint("Coincident", 29, 2, 30, 1),
    Sketcher.Constraint("Coincident", 30, 2, 31, 1),
    Sketcher.Constraint("Coincident", 31, 2, 32, 1),
    Sketcher.Constraint("Coincident", 32, 2, 29, 1),
    Sketcher.Constraint("Coincident", 33, 2, 34, 1),
    Sketcher.Constraint("Coincident", 34, 2, 35, 1),
    Sketcher.Constraint("Coincident", 35, 2, 36, 1),
    Sketcher.Constraint("Coincident", 36, 2, 33, 1),
    Sketcher.Constraint("Vertical", 0),
    Sketcher.Constraint("Horizontal", 1),
    Sketcher.Constraint("Vertical", 2),
    Sketcher.Constraint("Horizontal", 3),
    Sketcher.Constraint("Horizontal", 4),
    Sketcher.Constraint("Vertical", 5),
    Sketcher.Constraint("Horizontal", 6),
    Sketcher.Constraint("Vertical", 7),
    Sketcher.Constraint("Horizontal", 9),
    Sketcher.Constraint("Vertical", 10),
    Sketcher.Constraint("Horizontal", 11),
    Sketcher.Constraint("Vertical", 12),
    Sketcher.Constraint("Horizontal", 13),
    Sketcher.Constraint("Vertical", 14),
    Sketcher.Constraint("Horizontal", 15),
    Sketcher.Constraint("Vertical", 16),
    Sketcher.Constraint("Horizontal", 17),
    Sketcher.Constraint("Vertical", 18),
    Sketcher.Constraint("Horizontal", 19),
    Sketcher.Constraint("Vertical", 20),
    Sketcher.Constraint("Horizontal", 21),
    Sketcher.Constraint("Vertical", 22),
    Sketcher.Constraint("Horizontal", 23),
    Sketcher.Constraint("Vertical", 24),
    Sketcher.Constraint("Horizontal", 25),
    Sketcher.Constraint("Vertical", 26),
    Sketcher.Constraint("Horizontal", 27),
    Sketcher.Constraint("Vertical", 28),
    Sketcher.Constraint("Horizontal", 29),
    Sketcher.Constraint("Vertical", 30),
    Sketcher.Constraint("Horizontal", 31),
    Sketcher.Constraint("Vertical", 32),
    Sketcher.Constraint("Horizontal", 33),
    Sketcher.Constraint("Vertical", 34),
    Sketcher.Constraint("Horizontal", 35),
    Sketcher.Constraint("Vertical", 36),
    Sketcher.Constraint("Symmetric", 0, 2, 2, 2, -1, 1),
    Sketcher.Constraint("Symmetric", 11, 2, 13, 2, -1, 1),
    Sketcher.Constraint("Symmetric", 9, 2, 15, 2, -1, 1),
    Sketcher.Constraint("Symmetric", 6, 2, 29, 2, -1, 1),
    Sketcher.Constraint("Symmetric", 4, 2, 31, 2, -1, 1),
    Sketcher.Constraint("Symmetric", 7, 2, 9, 2, -2),
    Sketcher.Constraint("Symmetric", 5, 2, 11, 2, -2),
    Sketcher.Constraint("Symmetric", 24, 2, 25, 2, -2),
    Sketcher.Constraint("Symmetric", 22, 2, 27, 2, -2),
    Sketcher.Constraint("Symmetric", 20, 2, 33, 2, -2),
    Sketcher.Constraint("Symmetric", 18, 2, 35, 2, -2),
    Sketcher.Constraint("Horizontal", 20, 2, 21, 2),
    Sketcher.Constraint("Horizontal", 19, 2, 22, 2),
    Sketcher.Constraint("Equal", 19, 21),
    Sketcher.Constraint("Equal", 31, 18),
    Sketcher.Constraint("Diameter", 8, 3.5),
    Sketcher.Constraint("DistanceX", 1, 1, 1, 2, 240.0),
    Sketcher.Constraint("DistanceX", 4, 2, 4, 1, 3.0),
    Sketcher.Constraint("DistanceY", 0, 2, 0, 1, 100.0),
    Sketcher.Constraint("DistanceX", 17, 2, 17, 1, 14.6),
    Sketcher.Constraint("DistanceY", 5, 1, 5, 2, 9.6),
    Sketcher.Constraint("DistanceX", 4, 2, -1, 1, 110.0),
    Sketcher.Constraint("DistanceY", -1, 1, 17, 2, 37.0),
    Sketcher.Constraint("DistanceY", 8, 3, 4, 2, 3.0),
    Sketcher.Constraint("DistanceY", 4, 2, 13, 2, 50.0),
    Sketcher.Constraint("DistanceX", 17, 2, 21, 2, 45.0),
    Sketcher.Constraint("DistanceX", 21, 2, 25, 2, 65.0),
    Sketcher.Constraint("DistanceX", -1, 1, 8, 3, 93.5),
])
pad8 = body8.newObject("PartDesign::Pad", "Pad007")
pad8.Profile = sketch8
pad8.Length = 3
doc.recompute()

boolean = body8.newObject("PartDesign::Boolean", "Boolean")
boolean.Type = "Cut"
boolean.addObjects([body7])
doc.recompute()

boolean2 = body8.newObject("PartDesign::Boolean", "Boolean001")
boolean2.Type = "Cut"
boolean2.addObjects([body6])
doc.recompute()

boolean3 = body8.newObject("PartDesign::Boolean", "Boolean002")
boolean3.Type = "Cut"
boolean3.addObjects([body5])
doc.recompute()

boolean4 = body8.newObject("PartDesign::Boolean", "Boolean003")
boolean4.Type = "Cut"
boolean4.addObjects([body4])
doc.recompute()

boolean5 = body8.newObject("PartDesign::Boolean", "Boolean004")
boolean5.Type = "Cut"
boolean5.addObjects([body3])
doc.recompute()

boolean6 = body8.newObject("PartDesign::Boolean", "Boolean005")
boolean6.Type = "Cut"
boolean6.addObjects([body2])
doc.recompute()

boolean7 = body8.newObject("PartDesign::Boolean", "Boolean006")
boolean7.Type = "Cut"
boolean7.addObjects([body])
doc.recompute()

fillet = body8.newObject("PartDesign::Fillet", "Fillet")
fillet.Base = (boolean7, edges_at(boolean7, [
    (-120, 50, 1.5),
    (120, 50, 1.5),
    (-120, -50, 1.5),
    (120, -50, 1.5),
]))
fillet.Radius = 5
doc.recompute()

fillet2 = body8.newObject("PartDesign::Fillet", "Fillet001")
fillet2.Base = (fillet, edges_at(fillet, [
    (-24, -28, 1.5),
    (-24, -25, 1.5),
    (24, -28, 1.5),
    (24, -25, 1.5),
    (-24, 33, 1.5),
    (-24, 36, 1.5),
    (24, 33, 1.5),
    (24, 36, 1.5),
    (63, -13.5, 1.5),
    (63, 13.5, 1.5),
    (67, -13.5, 1.5),
    (67, 13.5, 1.5),
]))
fillet2.Radius = 1

doc.recompute()
